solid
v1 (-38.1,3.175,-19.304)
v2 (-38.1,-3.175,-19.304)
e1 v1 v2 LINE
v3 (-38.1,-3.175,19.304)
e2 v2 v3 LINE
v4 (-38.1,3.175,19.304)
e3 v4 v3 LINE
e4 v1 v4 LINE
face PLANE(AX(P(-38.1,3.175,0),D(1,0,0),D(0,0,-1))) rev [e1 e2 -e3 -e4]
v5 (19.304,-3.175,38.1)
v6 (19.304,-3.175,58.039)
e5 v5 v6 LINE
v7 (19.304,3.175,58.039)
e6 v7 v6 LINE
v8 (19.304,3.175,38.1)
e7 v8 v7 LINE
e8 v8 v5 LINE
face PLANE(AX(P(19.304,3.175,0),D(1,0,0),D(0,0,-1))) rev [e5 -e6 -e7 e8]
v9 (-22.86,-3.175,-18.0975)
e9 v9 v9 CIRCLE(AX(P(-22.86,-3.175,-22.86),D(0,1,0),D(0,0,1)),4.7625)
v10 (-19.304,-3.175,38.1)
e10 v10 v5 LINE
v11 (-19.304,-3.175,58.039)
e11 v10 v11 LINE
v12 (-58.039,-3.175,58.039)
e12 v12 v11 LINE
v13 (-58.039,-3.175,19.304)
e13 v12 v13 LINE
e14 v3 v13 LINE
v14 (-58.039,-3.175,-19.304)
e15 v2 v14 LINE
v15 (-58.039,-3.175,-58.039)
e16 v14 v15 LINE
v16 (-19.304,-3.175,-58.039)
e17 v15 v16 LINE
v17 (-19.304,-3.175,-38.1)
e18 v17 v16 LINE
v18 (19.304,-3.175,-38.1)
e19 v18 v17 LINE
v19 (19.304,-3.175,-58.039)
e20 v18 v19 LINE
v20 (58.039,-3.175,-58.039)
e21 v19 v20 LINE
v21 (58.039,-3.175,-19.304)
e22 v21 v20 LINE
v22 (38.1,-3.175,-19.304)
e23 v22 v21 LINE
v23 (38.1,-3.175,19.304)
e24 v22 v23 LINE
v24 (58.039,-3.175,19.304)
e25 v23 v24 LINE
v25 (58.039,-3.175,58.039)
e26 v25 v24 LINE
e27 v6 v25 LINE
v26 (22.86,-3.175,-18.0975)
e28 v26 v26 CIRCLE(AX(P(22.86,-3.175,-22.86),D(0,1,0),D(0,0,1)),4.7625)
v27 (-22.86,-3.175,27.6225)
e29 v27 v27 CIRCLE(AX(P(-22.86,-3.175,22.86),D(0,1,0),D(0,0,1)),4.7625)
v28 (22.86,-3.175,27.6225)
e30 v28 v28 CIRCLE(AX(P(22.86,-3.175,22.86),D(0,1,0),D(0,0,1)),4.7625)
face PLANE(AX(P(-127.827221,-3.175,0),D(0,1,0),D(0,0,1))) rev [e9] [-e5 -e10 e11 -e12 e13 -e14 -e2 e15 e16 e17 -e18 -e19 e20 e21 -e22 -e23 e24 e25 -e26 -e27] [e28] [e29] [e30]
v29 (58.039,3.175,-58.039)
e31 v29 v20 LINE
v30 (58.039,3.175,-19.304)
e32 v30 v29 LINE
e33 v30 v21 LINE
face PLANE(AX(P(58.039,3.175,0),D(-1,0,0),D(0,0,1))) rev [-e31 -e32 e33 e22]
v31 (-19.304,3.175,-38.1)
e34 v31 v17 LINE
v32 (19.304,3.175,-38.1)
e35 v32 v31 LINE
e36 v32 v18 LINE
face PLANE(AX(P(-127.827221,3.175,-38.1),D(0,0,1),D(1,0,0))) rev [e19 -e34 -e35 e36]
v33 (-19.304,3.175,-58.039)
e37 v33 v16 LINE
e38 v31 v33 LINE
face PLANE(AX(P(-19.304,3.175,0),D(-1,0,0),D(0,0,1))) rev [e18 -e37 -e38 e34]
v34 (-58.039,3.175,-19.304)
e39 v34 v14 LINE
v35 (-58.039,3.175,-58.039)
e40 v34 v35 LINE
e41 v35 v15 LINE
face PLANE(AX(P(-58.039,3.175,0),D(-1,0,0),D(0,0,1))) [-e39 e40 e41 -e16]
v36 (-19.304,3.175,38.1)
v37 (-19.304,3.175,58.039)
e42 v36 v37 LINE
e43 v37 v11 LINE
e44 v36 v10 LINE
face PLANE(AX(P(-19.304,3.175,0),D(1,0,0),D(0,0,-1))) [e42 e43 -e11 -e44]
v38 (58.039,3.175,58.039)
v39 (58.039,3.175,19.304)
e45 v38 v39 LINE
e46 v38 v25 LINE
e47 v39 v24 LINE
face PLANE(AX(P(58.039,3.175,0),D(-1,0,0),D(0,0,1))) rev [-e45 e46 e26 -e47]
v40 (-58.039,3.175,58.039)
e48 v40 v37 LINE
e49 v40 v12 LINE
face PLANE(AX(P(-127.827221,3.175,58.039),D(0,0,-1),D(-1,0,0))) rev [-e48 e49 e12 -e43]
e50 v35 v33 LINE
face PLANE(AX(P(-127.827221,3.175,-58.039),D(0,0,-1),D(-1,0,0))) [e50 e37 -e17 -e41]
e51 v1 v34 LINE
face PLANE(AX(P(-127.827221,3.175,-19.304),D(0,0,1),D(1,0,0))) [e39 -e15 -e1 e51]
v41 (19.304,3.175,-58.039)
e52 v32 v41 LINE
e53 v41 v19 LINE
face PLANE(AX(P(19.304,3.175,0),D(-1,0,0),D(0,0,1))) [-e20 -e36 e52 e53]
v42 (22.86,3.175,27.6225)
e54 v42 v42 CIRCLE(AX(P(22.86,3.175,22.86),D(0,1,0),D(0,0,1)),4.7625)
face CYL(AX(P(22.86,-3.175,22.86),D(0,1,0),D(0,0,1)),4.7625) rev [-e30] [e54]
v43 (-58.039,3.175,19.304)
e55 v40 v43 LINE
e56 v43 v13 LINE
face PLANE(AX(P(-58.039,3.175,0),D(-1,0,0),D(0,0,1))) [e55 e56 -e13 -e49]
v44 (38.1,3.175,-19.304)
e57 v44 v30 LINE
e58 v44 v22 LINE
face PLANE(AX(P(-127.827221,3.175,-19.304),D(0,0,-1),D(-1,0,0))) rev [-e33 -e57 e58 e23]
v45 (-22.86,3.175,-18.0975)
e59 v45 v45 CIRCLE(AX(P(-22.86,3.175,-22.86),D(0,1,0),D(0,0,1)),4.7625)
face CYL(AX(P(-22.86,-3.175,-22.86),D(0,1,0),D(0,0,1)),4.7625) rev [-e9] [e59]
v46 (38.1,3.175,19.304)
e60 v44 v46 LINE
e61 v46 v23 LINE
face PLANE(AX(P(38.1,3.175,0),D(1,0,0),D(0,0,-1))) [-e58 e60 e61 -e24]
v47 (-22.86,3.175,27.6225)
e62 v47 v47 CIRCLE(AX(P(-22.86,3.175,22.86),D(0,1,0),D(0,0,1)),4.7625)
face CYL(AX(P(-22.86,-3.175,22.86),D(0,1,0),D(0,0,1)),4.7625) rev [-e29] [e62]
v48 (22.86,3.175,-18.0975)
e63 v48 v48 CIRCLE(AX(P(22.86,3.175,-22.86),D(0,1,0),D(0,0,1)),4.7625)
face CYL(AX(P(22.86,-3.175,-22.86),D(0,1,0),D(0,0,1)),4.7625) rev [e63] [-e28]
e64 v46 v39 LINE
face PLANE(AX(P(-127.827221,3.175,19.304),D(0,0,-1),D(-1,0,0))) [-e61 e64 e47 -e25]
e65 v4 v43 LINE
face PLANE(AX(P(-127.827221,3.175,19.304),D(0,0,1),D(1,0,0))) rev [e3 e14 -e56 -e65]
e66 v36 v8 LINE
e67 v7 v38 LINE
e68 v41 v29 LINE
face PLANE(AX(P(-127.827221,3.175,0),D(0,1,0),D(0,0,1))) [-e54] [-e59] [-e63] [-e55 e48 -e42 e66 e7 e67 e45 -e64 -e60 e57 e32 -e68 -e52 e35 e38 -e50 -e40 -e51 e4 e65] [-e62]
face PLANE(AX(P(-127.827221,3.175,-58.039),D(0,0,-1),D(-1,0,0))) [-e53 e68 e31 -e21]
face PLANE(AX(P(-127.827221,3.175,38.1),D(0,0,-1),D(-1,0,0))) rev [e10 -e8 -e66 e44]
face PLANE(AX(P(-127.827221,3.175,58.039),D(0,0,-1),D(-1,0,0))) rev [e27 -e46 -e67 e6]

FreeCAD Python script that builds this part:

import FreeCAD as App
import Part
import Sketcher

V = App.Vector
Q = App.Units.Quantity

doc = App.newDocument("Part")
body = doc.addObject("PartDesign::Body", "Body")

# Sketch on XZ plane
sketch1 = body.newObject("Sketcher::SketchObject", "Sketch")
sketch1.AttachmentSupport = (doc.getObject("XZ_Plane"), [""])
sketch1.MapMode = "FlatFace"
sketch1.addGeometry([
    Part.LineSegment(V(-58.039, 19.304, 0), V(-58.039, 58.039, 0)),  # 0
    Part.LineSegment(V(-58.039, 58.039, 0), V(-19.304, 58.039, 0)),  # 1
    Part.LineSegment(V(-19.304, 58.039, 0), V(-19.304, 38.1, 0)),  # 2
    Part.LineSegment(V(-19.304, 38.1, 0), V(19.304, 38.1, 0)),  # 3
    Part.LineSegment(V(19.304, 38.1, 0), V(19.304, 58.039, 0)),  # 4
    Part.LineSegment(V(19.304, 58.039, 0), V(58.039, 58.039, 0)),  # 5
    Part.LineSegment(V(58.039, 58.039, 0), V(58.039, 19.304, 0)),  # 6
    Part.LineSegment(V(58.039, 19.304, 0), V(38.1, 19.304, 0)),  # 7
    Part.LineSegment(V(38.1, 19.304, 0), V(38.1, -19.304, 0)),  # 8
    Part.LineSegment(V(38.1, -19.304, 0), V(58.039, -19.304, 0)),  # 9
    Part.LineSegment(V(58.039, -19.304, 0), V(58.039, -58.039, 0)),  # 10
    Part.LineSegment(V(58.039, -58.039, 0), V(19.304, -58.039, 0)),  # 11
    Part.LineSegment(V(19.304, -58.039, 0), V(19.304, -38.1, 0)),  # 12
    Part.LineSegment(V(19.304, -38.1, 0), V(-19.304, -38.1, 0)),  # 13
    Part.LineSegment(V(-19.304, -38.1, 0), V(-19.304, -58.039, 0)),  # 14
    Part.LineSegment(V(-19.304, -58.039, 0), V(-58.039, -58.039, 0)),  # 15
    Part.LineSegment(V(-58.039, -58.039, 0), V(-58.039, -19.304, 0)),  # 16
    Part.LineSegment(V(-58.039, -19.304, 0), V(-38.1, -19.304, 0)),  # 17
    Part.LineSegment(V(-38.1, -19.304, 0), V(-38.1, 19.304, 0)),  # 18
    Part.LineSegment(V(-38.1, 19.304, 0), V(-58.039, 19.304, 0)),  # 19
], False)
sketch1.addConstraint([
    Sketcher.Constraint("Coincident", 0, 2, 1, 1),
    Sketcher.Constraint("Coincident", 1, 2, 2, 1),
    Sketcher.Constraint("Coincident", 2, 2, 3, 1),
    Sketcher.Constraint("Coincident", 3, 2, 4, 1),
    Sketcher.Constraint("Coincident", 4, 2, 5, 1),
    Sketcher.Constraint("Coincident", 5, 2, 6, 1),
    Sketcher.Constraint("Coincident", 6, 2, 7, 1),
    Sketcher.Constraint("Coincident", 7, 2, 8, 1),
    Sketcher.Constraint("Coincident", 8, 2, 9, 1),
    Sketcher.Constraint("Coincident", 9, 2, 10, 1),
    Sketcher.Constraint("Coincident", 10, 2, 11, 1),
    Sketcher.Constraint("Coincident", 11, 2, 12, 1),
    Sketcher.Constraint("Coincident", 12, 2, 13, 1),
    Sketcher.Constraint("Coincident", 13, 2, 14, 1),
    Sketcher.Constraint("Coincident", 14, 2, 15, 1),
    Sketcher.Constraint("Coincident", 15, 2, 16, 1),
    Sketcher.Constraint("Coincident", 16, 2, 17, 1),
    Sketcher.Constraint("Coincident", 17, 2, 18, 1),
    Sketcher.Constraint("Coincident", 18, 2, 19, 1),
    Sketcher.Constraint("Coincident", 19, 2, 0, 1),
    Sketcher.Constraint("Vertical", 0),
    Sketcher.Constraint("Horizontal", 1),
    Sketcher.Constraint("Vertical", 2),
    Sketcher.Constraint("Horizontal", 3),
    Sketcher.Constraint("Vertical", 4),
    Sketcher.Constraint("Horizontal", 5),
    Sketcher.Constraint("Vertical", 6),
    Sketcher.Constraint("Horizontal", 7),
    Sketcher.Constraint("Vertical", 8),
    Sketcher.Constraint("Horizontal", 9),
    Sketcher.Constraint("Vertical", 10),
    Sketcher.Constraint("Horizontal", 11),
    Sketcher.Constraint("Vertical", 12),
    Sketcher.Constraint("Horizontal", 13),
    Sketcher.Constraint("Vertical", 14),
    Sketcher.Constraint("Horizontal", 15),
    Sketcher.Constraint("Vertical", 16),
    Sketcher.Constraint("Horizontal", 17),
    Sketcher.Constraint("Vertical", 18),
    Sketcher.Constraint("Horizontal", 19),
    Sketcher.Constraint("Symmetric", 0, 2, 10, 2, -1, 1),
    Sketcher.Constraint("Symmetric", 2, 2, 12, 2, -1, 1),
    Sketcher.Constraint("Symmetric", 4, 2, 14, 2, -1, 1),
    Sketcher.Constraint("Symmetric", 6, 2, 16, 2, -1, 1),
    Sketcher.Constraint("Symmetric", 8, 2, 18, 2, -1, 1),
    Sketcher.Constraint("Symmetric", 1, 2, 4, 2, -2),
    Sketcher.Constraint("Symmetric", 9, 2, 16, 2, -2),
    Sketcher.Constraint("Equal", 15, 0),
    Sketcher.Constraint("Equal", 19, 2),
    Sketcher.Constraint("Equal", 13, 8),
    Sketcher.Constraint("DistanceY", 13, 2, 2, 2, Q("3 in")),
    Sketcher.Constraint("DistanceX", 3, 1, 3, 2, Q("1.52 in")),
    Sketcher.Constraint("DistanceX", 1, 1, 1, 2, Q("1.525 in")),
])
pad1 = body.newObject("PartDesign::Pad", "Pad")
pad1.Profile = sketch1
pad1.Length = Q("0.25 in")
pad1.Midplane = True

# Sketch on XZ plane
sketch2 = body.newObject("Sketcher::SketchObject", "Sketch001")
sketch2.AttachmentSupport = (doc.getObject("XZ_Plane"), [""])
sketch2.MapMode = "FlatFace"
sketch2.AttachmentOffset = App.Placement(V(0, 0, -0.125 * 25.4), App.Rotation())
sketch2.addGeometry([
    Part.Circle(V(-22.86, -22.86, 0), V(0, 0, 1), 4.7625),
    Part.Circle(V(-22.86, 22.86, 0), V(0, 0, 1), 4.7625),
    Part.Circle(V(22.86, 22.86, 0), V(0, 0, 1), 4.7625),
    Part.Circle(V(22.86, -22.86, 0), V(0, 0, 1), 4.7625),
], False)
sketch2.addConstraint([
    Sketcher.Constraint("Equal", 0, 1),
    Sketcher.Constraint("Equal", 1, 2),
    Sketcher.Constraint("Equal", 2, 3),
    Sketcher.Constraint("Symmetric", 0, 3, 2, 3, -1, 1),
    Sketcher.Constraint("Symmetric", 1, 3, 3, 3, -1, 1),
    Sketcher.Constraint("Symmetric", 1, 3, 2, 3, -2),
    Sketcher.Constraint("Diameter", 0, Q("0.375 in")),
    Sketcher.Constraint("DistanceX", 0, 3, -1, 1, Q("0.9 in")),
    Sketcher.Constraint("DistanceY", 0, 3, -1, 1, Q("0.9 in")),
])
pocket1 = body.newObject("PartDesign::Pocket", "Pocket")
pocket1.Profile = sketch2
pocket1.Type = "ThroughAll"
pocket1.Reversed = True

doc.recompute()
